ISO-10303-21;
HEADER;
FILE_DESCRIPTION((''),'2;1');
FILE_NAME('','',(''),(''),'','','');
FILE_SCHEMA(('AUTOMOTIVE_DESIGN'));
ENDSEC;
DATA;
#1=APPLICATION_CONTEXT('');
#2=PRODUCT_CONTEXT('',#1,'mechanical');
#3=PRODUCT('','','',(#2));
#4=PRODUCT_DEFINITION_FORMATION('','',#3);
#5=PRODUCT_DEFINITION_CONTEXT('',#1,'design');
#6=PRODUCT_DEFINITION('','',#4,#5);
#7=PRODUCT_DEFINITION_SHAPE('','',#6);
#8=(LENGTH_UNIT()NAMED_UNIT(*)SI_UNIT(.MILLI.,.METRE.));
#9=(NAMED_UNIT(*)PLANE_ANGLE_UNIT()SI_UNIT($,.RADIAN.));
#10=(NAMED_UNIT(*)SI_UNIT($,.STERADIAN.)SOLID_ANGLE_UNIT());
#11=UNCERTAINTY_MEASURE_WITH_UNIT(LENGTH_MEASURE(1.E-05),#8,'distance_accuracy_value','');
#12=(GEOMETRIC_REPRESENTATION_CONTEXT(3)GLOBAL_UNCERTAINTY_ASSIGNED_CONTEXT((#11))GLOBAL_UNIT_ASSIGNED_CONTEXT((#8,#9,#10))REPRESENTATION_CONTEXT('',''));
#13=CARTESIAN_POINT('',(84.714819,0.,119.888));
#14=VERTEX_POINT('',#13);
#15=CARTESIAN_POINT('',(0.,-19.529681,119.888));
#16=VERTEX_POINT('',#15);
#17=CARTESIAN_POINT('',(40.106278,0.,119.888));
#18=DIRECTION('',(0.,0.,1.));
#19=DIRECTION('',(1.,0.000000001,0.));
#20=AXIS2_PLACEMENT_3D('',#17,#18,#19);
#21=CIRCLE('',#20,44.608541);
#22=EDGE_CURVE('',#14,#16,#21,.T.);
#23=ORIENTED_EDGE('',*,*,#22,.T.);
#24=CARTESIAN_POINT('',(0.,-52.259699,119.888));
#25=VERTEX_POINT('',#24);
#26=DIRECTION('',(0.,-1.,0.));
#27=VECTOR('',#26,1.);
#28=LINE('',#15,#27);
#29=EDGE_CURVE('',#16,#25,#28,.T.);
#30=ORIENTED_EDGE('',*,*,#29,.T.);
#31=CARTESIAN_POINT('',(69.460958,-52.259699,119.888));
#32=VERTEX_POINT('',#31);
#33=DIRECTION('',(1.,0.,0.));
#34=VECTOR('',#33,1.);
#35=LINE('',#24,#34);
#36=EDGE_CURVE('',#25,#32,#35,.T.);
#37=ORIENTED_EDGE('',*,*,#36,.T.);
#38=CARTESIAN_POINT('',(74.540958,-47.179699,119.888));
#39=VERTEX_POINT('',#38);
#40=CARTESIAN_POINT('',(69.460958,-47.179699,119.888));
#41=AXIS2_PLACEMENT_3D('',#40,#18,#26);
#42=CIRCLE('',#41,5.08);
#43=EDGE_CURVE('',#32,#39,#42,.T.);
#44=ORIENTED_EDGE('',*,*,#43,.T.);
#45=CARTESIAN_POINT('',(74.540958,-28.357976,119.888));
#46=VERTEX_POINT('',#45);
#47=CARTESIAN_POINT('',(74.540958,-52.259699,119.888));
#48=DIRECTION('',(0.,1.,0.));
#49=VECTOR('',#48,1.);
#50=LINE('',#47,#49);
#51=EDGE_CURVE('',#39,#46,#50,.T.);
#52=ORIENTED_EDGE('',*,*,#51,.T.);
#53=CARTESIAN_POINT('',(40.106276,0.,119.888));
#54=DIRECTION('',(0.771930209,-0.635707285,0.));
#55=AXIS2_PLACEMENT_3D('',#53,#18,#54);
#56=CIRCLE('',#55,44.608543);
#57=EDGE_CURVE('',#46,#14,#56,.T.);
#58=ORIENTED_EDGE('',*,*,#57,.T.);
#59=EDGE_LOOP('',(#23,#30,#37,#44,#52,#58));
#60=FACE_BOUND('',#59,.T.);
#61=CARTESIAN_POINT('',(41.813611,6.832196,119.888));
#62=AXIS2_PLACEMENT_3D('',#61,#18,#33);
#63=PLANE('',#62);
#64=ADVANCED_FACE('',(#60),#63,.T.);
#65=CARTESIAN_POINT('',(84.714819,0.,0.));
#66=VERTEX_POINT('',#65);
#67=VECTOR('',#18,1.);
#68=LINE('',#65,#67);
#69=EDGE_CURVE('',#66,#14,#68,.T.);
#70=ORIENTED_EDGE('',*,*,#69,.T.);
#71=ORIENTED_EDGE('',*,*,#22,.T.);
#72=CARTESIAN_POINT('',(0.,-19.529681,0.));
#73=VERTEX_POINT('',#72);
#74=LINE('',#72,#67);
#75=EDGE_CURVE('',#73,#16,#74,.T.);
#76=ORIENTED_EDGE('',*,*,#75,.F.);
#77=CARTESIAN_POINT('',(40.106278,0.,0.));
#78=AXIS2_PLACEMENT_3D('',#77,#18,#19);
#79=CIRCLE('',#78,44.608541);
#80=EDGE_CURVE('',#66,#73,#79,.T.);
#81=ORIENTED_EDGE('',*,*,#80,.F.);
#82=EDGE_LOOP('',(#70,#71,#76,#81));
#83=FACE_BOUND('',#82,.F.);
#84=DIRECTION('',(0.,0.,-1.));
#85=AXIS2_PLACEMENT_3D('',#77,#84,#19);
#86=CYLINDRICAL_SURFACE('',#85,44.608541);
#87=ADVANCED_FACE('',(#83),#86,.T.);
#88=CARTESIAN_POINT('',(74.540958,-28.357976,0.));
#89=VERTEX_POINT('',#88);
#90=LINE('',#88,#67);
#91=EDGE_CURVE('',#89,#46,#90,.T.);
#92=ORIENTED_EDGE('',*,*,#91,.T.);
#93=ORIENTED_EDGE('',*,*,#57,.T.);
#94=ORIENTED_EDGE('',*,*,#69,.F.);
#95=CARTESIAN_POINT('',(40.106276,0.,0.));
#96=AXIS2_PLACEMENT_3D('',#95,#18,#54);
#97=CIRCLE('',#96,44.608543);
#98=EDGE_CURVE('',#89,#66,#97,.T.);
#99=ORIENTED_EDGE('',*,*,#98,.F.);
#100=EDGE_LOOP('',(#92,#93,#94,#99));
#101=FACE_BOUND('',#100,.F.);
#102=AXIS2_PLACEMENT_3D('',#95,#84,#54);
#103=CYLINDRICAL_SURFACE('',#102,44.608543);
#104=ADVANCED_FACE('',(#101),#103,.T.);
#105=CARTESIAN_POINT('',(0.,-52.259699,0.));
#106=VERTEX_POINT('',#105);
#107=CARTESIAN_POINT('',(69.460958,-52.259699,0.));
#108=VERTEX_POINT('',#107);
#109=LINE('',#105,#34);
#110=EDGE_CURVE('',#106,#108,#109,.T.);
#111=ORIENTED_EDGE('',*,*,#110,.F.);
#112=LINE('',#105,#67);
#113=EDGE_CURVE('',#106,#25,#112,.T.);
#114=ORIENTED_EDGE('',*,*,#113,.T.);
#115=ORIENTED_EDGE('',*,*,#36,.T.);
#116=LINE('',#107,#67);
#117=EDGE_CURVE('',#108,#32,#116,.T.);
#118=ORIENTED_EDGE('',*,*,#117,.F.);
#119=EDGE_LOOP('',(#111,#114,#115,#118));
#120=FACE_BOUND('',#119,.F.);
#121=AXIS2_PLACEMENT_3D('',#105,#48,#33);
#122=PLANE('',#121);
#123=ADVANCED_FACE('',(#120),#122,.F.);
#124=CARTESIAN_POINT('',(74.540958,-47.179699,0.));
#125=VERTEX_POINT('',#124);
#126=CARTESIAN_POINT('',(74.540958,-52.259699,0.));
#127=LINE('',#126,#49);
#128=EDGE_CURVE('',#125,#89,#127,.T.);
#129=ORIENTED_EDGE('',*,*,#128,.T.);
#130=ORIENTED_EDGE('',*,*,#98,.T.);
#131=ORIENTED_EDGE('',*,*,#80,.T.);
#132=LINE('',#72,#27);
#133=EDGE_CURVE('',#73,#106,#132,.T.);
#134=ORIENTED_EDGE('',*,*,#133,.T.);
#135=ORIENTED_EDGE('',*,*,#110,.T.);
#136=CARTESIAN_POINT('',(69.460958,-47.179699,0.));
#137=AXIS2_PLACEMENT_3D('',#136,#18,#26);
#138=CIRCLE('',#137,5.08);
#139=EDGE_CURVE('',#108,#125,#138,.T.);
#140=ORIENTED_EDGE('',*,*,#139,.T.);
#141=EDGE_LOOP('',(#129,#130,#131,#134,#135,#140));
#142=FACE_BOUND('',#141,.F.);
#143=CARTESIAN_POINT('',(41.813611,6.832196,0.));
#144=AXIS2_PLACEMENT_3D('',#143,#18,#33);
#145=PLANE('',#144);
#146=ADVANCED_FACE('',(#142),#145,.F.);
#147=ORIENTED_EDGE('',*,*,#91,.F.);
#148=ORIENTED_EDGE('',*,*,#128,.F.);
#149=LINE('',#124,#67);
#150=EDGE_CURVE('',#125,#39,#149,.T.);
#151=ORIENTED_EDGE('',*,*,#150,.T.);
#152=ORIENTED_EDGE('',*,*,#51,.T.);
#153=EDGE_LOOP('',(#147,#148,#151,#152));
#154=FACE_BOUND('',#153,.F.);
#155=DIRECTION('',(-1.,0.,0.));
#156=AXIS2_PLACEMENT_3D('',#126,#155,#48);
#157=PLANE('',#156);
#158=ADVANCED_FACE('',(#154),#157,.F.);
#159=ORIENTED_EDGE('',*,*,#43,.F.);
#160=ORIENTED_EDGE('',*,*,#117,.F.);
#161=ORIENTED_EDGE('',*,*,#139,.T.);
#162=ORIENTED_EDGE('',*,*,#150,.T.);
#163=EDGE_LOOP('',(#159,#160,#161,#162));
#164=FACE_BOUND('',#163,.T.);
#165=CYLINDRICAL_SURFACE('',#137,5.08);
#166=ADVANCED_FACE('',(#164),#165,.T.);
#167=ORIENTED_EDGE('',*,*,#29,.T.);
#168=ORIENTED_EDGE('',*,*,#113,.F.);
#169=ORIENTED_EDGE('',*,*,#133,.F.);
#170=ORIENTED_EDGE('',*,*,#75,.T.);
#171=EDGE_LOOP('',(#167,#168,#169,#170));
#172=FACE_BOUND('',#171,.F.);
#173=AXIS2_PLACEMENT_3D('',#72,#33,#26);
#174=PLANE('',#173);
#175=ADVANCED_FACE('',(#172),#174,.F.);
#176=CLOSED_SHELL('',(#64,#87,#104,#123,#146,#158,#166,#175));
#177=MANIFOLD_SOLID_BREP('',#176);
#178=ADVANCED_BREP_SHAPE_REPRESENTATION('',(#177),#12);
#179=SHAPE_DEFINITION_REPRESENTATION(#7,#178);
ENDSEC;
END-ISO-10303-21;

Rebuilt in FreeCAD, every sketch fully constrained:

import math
import FreeCAD as App
import Part
import Sketcher

V = App.Vector
Q = App.Units.Quantity


def edges_at(feature, points):
    """Names of the edges that pass closest to the given points."""
    edges = feature.Shape.Edges
    near = lambda p: min(range(len(edges)), key=lambda i: edges[i].distToShape(Part.Vertex(*p))[0])
    return sorted({f"Edge{near(p) + 1}" for p in points})

doc = App.newDocument("Part")
body = doc.addObject("PartDesign::Body", "Body")

# Sketch on XY plane
sketch1 = doc.addObject("Sketcher::SketchObject", "Sketch")
body.addObject(sketch1)
sketch1.AttachmentSupport = (doc.XY_Plane, [""])
sketch1.MapMode = "FlatFace"
sketch1.addGeometry(Part.ArcOfCircle(Part.Circle(V(40, 0, 0), V(0, 0, 1), 45), math.radians(-39), math.radians(0)), False)
sketch1.addGeometry(Part.ArcOfCircle(Part.Circle(V(40, 0, 0), V(0, 0, 1), 45), math.radians(0), math.radians(206)), False)
sketch1.addGeometry(Part.LineSegment(V(0, -20, 0), V(0, -52, 0)), False)
sketch1.addGeometry(Part.LineSegment(V(0, -52, 0), V(75, -52, 0)), False)
sketch1.addGeometry(Part.LineSegment(V(75, -52, 0), V(75, -28, 0)), False)
sketch1.addConstraint(Sketcher.Constraint("Tangent", 0, 2, 1, 1))
sketch1.addConstraint(Sketcher.Constraint("Coincident", 1, 2, 2, 1))
sketch1.addConstraint(Sketcher.Constraint("Coincident", 2, 2, 3, 1))
sketch1.addConstraint(Sketcher.Constraint("Coincident", 3, 2, 4, 1))
sketch1.addConstraint(Sketcher.Constraint("Coincident", 4, 2, 0, 1))
sketch1.addConstraint(Sketcher.Constraint("Vertical", 2))
sketch1.addConstraint(Sketcher.Constraint("Horizontal", 3))
sketch1.addConstraint(Sketcher.Constraint("Vertical", 4))
sketch1.addConstraint(Sketcher.Constraint("Equal", 0, 1))
sketch1.addConstraint(Sketcher.Constraint("PointOnObject", 0, 3, -1))
sketch1.addConstraint(Sketcher.Constraint("PointOnObject", 0, 2, -1))
sketch1.addConstraint(Sketcher.Constraint("PointOnObject", 1, 2, -2))
sketch1.addConstraint(Sketcher.Constraint("Radius", 1, 44.608541))
sketch1.addConstraint(Sketcher.Constraint("DistanceX", 3, 1, 3, 2, 74.540958))
sketch1.addConstraint(Sketcher.Constraint("DistanceY", 2, 2, -1, 1, 52.259699))
sketch1.addConstraint(Sketcher.Constraint("DistanceY", 2, 2, 2, 1, 32.730018))
pad1 = doc.addObject("PartDesign::Pad", "Pad")
body.addObject(pad1)
pad1.Profile = sketch1
pad1.Length = Q("4.72 in")
doc.recompute()

fillet = doc.addObject("PartDesign::Fillet", "Fillet")
body.addObject(fillet)
fillet.Base = (pad1, edges_at(pad1, [(74.541, -52.26, 59.944)]))
fillet.Radius = Q("0.2 in")

doc.recompute()
